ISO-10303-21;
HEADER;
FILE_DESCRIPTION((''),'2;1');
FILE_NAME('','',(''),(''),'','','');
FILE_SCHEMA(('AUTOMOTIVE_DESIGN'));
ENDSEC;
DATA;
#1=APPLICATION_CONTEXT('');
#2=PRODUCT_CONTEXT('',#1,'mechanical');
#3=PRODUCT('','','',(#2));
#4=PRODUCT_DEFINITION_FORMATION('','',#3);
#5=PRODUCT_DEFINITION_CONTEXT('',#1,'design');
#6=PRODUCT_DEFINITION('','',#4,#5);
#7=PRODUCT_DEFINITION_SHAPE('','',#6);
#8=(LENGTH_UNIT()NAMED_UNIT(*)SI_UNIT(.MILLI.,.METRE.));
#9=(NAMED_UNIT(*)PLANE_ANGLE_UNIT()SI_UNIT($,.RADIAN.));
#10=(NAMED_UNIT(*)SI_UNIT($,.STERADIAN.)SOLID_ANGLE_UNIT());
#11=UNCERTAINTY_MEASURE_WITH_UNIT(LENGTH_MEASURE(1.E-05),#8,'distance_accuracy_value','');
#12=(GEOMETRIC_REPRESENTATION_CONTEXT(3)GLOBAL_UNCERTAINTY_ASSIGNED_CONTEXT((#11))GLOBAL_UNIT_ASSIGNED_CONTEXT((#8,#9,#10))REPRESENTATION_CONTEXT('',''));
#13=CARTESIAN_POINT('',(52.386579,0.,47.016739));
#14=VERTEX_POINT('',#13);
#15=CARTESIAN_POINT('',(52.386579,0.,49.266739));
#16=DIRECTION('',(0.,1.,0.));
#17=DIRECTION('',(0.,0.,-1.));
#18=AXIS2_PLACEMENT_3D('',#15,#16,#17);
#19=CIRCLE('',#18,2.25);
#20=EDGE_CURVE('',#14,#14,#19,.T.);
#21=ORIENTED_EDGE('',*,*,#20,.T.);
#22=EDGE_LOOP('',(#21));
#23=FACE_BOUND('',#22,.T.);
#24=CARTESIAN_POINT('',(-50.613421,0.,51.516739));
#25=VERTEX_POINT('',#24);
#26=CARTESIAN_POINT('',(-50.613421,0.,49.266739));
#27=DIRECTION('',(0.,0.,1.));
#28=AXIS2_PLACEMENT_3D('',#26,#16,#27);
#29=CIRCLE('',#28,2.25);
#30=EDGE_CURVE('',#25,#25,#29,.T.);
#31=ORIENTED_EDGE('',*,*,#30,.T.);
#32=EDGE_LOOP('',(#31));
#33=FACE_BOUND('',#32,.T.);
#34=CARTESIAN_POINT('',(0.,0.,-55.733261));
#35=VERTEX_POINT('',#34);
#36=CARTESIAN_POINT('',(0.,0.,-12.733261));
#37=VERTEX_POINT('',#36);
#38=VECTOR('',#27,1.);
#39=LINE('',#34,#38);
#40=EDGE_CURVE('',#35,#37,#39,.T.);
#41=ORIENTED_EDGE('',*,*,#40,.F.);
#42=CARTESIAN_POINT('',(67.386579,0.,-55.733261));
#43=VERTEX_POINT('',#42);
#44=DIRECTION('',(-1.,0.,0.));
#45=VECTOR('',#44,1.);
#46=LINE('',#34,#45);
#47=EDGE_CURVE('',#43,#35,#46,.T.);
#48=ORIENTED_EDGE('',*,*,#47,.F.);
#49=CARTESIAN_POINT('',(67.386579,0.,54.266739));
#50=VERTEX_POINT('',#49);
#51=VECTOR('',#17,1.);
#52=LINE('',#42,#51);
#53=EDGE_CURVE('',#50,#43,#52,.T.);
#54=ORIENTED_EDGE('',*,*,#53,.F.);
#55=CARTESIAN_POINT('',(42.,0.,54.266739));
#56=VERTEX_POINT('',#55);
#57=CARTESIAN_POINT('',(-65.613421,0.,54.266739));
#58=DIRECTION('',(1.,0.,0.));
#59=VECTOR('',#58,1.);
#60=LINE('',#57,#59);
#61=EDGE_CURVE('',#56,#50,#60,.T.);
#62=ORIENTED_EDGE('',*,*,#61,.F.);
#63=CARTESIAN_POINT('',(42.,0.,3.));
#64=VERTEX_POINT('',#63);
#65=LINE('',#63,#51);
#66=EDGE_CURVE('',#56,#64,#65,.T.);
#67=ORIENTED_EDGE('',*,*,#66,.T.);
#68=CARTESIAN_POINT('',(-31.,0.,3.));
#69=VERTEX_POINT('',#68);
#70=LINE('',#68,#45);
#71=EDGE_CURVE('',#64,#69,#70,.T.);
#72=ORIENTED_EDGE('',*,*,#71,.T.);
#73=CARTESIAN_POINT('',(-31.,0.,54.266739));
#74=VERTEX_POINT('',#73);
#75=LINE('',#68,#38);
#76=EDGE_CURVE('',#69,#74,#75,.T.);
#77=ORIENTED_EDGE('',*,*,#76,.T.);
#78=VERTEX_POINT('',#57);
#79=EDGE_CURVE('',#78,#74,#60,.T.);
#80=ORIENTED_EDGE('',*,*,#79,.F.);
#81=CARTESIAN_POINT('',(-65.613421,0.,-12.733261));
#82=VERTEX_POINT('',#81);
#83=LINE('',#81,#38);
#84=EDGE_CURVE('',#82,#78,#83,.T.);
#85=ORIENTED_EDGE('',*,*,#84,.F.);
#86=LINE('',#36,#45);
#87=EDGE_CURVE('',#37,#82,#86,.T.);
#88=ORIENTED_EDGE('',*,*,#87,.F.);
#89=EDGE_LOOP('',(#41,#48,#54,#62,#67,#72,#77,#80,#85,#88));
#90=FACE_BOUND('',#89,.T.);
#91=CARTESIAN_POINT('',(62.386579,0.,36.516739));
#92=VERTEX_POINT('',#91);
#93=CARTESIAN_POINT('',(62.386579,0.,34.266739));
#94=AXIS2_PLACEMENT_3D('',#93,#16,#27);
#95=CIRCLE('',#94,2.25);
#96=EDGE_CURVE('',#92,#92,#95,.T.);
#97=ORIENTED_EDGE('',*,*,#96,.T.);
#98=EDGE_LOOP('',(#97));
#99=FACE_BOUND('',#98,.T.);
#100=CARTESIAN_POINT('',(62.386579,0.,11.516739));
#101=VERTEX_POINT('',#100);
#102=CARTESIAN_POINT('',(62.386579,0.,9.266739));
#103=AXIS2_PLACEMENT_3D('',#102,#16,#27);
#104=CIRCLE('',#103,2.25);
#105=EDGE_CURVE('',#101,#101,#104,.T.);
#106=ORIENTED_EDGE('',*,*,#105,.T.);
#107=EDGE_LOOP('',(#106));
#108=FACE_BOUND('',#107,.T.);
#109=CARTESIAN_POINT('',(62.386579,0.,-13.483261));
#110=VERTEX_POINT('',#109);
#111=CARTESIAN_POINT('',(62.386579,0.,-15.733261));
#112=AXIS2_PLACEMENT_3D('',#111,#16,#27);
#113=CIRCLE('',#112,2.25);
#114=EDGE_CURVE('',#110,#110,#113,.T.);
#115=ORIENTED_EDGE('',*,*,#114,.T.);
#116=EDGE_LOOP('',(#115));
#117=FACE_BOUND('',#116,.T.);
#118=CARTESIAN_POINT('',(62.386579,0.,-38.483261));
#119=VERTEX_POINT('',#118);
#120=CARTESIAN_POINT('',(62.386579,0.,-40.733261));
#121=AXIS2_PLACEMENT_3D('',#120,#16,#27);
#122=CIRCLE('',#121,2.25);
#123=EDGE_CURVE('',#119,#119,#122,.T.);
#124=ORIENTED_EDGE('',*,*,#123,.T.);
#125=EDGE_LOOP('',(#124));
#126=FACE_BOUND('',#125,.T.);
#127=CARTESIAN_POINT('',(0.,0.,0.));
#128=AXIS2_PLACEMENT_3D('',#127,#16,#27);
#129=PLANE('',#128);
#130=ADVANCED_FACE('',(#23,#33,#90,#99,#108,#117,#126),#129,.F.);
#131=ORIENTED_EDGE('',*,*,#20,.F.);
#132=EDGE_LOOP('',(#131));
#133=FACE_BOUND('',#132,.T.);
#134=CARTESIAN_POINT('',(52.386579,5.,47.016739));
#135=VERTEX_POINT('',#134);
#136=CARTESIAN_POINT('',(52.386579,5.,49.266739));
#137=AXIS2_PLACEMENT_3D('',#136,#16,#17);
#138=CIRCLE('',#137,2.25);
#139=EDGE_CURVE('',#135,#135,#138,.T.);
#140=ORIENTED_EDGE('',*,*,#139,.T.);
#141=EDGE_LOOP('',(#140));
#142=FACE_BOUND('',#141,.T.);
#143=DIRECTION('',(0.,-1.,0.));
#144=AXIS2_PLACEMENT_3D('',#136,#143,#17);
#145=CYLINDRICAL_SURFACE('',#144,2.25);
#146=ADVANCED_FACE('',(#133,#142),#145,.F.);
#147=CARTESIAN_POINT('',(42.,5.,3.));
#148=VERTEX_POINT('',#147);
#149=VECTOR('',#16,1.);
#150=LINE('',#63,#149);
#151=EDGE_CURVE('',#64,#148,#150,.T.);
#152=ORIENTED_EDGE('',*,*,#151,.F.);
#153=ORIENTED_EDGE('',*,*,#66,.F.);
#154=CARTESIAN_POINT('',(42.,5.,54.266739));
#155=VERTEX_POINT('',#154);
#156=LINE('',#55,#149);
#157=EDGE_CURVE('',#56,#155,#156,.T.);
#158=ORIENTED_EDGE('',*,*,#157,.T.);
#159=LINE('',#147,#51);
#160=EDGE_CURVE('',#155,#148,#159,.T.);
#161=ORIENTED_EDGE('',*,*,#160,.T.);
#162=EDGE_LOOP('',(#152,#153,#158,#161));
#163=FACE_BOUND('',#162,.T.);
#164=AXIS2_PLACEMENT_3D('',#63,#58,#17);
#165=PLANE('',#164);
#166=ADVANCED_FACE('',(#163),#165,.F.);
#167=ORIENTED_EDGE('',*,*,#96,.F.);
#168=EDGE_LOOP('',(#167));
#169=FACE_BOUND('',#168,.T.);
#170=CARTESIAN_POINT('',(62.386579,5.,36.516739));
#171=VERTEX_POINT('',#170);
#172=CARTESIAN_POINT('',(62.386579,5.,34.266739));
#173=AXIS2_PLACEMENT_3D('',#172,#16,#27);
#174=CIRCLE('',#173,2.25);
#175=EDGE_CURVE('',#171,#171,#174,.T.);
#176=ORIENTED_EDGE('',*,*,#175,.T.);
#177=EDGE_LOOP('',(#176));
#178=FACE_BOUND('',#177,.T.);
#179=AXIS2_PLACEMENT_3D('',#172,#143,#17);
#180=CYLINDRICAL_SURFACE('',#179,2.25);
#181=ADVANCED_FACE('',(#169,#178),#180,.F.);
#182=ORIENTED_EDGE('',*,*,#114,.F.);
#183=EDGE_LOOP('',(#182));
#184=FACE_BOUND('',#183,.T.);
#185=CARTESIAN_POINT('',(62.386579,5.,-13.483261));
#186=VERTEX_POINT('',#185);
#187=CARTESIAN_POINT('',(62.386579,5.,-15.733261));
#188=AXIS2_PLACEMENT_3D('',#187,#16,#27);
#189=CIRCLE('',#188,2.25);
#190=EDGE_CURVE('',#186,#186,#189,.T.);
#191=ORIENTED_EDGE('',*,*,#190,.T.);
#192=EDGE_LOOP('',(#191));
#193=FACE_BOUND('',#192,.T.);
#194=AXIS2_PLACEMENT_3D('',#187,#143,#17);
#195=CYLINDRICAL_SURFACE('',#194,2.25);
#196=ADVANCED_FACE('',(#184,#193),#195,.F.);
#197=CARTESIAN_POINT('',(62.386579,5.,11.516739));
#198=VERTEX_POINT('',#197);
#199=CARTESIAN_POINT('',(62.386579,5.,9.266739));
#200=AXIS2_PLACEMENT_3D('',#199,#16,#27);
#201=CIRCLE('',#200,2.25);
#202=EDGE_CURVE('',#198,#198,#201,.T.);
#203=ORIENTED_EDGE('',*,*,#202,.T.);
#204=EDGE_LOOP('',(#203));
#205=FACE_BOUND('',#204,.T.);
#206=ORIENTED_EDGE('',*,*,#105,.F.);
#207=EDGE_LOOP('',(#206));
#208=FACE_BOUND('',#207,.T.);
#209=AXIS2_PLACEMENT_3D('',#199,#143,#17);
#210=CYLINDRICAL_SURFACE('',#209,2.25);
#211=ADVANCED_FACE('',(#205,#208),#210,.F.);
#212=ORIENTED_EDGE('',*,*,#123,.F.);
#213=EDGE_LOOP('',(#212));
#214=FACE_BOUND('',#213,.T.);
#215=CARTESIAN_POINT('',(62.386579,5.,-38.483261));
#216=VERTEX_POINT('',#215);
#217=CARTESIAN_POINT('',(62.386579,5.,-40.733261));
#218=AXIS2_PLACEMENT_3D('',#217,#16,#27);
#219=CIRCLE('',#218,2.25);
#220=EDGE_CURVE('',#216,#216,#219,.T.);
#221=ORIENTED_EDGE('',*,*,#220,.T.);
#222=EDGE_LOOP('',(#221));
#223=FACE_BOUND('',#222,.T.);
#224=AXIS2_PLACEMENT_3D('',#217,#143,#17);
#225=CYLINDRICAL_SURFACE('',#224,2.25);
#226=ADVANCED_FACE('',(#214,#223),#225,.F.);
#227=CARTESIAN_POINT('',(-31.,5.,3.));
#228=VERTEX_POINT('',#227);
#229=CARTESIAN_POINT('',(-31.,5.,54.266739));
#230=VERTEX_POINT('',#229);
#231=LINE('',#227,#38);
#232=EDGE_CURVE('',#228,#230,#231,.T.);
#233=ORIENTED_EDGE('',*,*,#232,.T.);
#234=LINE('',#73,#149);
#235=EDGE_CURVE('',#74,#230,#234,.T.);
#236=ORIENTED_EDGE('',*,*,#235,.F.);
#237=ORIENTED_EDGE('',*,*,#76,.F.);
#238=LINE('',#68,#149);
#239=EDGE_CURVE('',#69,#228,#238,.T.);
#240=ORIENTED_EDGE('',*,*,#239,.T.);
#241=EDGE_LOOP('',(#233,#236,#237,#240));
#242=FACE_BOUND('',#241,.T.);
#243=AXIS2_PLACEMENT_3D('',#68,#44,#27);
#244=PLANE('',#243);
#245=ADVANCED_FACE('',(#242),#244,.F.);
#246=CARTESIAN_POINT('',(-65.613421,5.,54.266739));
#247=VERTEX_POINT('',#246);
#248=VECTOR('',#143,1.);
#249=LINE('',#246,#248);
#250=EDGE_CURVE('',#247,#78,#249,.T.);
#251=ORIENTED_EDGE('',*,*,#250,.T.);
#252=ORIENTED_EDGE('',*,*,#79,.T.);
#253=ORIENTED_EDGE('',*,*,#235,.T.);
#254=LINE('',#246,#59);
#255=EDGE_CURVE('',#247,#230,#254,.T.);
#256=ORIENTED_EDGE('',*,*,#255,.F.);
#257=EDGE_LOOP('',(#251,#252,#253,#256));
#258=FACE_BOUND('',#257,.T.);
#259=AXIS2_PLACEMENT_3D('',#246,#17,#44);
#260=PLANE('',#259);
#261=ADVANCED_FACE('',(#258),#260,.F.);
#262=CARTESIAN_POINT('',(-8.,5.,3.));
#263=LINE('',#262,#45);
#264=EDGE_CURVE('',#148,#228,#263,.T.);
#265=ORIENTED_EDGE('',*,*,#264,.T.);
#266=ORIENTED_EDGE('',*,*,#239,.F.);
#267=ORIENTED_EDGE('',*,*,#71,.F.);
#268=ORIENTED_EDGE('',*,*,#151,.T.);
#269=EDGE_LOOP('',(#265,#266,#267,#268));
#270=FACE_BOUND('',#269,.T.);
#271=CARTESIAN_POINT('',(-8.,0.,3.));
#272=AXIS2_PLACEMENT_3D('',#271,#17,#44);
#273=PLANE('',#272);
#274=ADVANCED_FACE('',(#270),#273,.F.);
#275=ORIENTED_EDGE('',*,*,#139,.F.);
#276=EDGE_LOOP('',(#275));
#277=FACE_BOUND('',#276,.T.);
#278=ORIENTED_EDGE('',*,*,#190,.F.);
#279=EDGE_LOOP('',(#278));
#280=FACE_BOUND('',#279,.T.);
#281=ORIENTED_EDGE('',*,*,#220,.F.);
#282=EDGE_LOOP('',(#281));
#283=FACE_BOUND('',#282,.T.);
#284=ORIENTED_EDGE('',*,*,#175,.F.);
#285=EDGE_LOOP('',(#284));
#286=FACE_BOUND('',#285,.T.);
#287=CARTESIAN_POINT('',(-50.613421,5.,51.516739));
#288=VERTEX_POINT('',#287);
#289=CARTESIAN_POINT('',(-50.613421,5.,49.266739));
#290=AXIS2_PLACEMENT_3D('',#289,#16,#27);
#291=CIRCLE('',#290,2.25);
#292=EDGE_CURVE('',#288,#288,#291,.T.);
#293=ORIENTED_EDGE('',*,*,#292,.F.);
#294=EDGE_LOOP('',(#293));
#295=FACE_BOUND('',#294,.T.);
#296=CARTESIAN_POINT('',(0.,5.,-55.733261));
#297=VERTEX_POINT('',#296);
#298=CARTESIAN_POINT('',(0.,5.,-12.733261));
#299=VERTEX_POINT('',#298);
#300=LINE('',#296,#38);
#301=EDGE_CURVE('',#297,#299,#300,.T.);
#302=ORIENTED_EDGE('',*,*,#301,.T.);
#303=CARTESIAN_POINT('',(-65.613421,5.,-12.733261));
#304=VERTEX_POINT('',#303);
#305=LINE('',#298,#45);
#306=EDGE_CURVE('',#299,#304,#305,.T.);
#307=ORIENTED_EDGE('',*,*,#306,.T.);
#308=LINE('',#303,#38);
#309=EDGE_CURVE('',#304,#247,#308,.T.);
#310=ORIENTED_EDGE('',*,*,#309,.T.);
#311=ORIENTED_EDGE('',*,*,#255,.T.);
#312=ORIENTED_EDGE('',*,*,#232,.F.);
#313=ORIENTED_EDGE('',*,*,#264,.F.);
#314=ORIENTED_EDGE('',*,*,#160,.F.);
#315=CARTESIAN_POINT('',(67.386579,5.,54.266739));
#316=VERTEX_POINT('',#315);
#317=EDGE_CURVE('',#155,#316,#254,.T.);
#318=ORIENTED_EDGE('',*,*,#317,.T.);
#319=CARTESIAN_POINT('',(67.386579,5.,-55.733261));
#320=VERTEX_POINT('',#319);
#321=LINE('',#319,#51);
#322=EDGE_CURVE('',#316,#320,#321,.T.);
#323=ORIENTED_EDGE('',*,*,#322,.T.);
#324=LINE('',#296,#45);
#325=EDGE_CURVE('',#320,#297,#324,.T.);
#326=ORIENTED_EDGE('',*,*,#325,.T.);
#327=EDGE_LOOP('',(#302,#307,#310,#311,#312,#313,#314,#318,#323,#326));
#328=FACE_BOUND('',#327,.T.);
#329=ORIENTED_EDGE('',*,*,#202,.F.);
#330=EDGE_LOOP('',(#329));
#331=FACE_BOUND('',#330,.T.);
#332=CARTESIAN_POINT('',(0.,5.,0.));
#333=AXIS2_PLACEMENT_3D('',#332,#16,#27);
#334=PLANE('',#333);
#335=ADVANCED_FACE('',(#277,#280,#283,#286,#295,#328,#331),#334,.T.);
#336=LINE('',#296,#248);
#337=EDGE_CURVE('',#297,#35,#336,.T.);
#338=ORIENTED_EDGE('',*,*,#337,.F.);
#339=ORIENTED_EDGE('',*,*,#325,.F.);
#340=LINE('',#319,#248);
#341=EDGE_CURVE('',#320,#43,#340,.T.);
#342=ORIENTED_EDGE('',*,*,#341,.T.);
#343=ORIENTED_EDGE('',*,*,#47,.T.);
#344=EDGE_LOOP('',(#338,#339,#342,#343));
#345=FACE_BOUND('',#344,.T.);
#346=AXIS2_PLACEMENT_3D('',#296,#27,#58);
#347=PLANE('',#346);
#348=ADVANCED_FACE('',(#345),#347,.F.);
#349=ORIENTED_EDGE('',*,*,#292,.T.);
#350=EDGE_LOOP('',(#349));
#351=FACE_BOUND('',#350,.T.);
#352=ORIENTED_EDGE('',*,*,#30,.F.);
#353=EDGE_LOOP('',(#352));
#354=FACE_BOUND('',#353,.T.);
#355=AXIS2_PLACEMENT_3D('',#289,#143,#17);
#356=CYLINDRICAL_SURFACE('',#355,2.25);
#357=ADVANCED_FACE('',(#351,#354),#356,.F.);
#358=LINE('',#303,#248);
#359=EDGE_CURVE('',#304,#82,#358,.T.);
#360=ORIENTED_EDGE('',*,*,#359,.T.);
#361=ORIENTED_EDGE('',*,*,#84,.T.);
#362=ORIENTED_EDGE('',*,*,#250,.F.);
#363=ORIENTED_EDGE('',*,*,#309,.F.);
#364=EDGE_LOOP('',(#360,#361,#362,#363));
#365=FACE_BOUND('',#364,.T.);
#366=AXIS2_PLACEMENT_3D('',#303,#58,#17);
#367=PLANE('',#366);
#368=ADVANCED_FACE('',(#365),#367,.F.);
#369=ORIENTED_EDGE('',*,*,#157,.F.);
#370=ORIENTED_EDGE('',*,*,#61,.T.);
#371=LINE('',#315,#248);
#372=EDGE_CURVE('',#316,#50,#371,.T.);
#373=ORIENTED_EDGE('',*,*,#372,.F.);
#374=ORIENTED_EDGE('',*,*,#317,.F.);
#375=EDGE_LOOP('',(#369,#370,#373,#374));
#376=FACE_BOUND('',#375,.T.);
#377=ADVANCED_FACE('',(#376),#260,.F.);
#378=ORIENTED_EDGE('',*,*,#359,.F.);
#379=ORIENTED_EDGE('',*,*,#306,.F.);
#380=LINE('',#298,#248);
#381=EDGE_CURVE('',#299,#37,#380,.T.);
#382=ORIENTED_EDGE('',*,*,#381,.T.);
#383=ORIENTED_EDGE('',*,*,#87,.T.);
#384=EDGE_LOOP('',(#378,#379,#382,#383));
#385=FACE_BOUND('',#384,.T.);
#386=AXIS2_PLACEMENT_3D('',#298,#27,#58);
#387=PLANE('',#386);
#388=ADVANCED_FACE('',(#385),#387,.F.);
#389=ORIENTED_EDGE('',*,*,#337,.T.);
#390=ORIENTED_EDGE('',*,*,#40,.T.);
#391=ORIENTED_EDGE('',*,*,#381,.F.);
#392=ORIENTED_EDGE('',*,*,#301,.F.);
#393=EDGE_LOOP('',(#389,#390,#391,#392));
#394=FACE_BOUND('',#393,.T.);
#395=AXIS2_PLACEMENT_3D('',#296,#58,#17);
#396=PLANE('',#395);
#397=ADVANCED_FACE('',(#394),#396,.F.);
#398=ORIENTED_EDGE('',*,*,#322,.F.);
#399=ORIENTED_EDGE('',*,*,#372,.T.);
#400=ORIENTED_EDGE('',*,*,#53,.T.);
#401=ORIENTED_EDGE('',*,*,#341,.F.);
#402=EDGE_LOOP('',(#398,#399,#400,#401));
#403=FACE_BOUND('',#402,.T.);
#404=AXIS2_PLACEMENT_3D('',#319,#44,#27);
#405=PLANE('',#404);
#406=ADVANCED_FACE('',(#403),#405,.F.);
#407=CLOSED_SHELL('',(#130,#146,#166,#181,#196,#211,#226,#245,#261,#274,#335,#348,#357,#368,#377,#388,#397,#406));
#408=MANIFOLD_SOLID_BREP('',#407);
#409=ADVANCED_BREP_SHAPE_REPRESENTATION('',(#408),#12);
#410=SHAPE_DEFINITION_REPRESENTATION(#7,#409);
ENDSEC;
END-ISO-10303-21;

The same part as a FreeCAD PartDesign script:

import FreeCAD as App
import Part
import Sketcher

V = App.Vector

doc = App.newDocument("Part")
body = doc.addObject("PartDesign::Body", "Body")

sketch1 = body.newObject("Sketcher::SketchObject", "Sketch")
sketch1.AttachmentSupport = (doc.getObject("XZ_Plane"), [""])
sketch1.MapMode = "FlatFace"
sketch1.addGeometry(Part.LineSegment(V(0, -55.7, 0), V(0, -12.7, 0)), False)
sketch1.addGeometry(Part.LineSegment(V(0, -12.7, 0), V(-65.6, -12.7, 0)), False)
sketch1.addGeometry(Part.LineSegment(V(-65.6, -12.7, 0), V(-65.6, 54.3, 0)), False)
sketch1.addGeometry(Part.LineSegment(V(-65.6, 54.3, 0), V(67.4, 54.3, 0)), False)
sketch1.addGeometry(Part.LineSegment(V(67.4, 54.3, 0), V(67.4, -55.7, 0)), False)
sketch1.addGeometry(Part.LineSegment(V(67.4, -55.7, 0), V(0, -55.7, 0)), False)
sketch1.addGeometry(Part.Circle(V(-50.6, 49.3, 0), V(0, 0, 1), 2.2), False)
sketch1.addGeometry(Part.Circle(V(0.9, 49.3, 0), V(0, 0, 1), 2.2), False)
sketch1.addGeometry(Part.Circle(V(52.4, 49.3, 0), V(0, 0, 1), 2.2), False)
sketch1.addGeometry(Part.Circle(V(62.4, 34.3, 0), V(0, 0, 1), 2.2), False)
sketch1.addGeometry(Part.Circle(V(62.4, 9.3, 0), V(0, 0, 1), 2.2), False)
sketch1.addGeometry(Part.Circle(V(62.4, -15.7, 0), V(0, 0, 1), 2.2), False)
sketch1.addGeometry(Part.Circle(V(62.4, -40.7, 0), V(0, 0, 1), 2.2), False)
sketch1.addConstraint(Sketcher.Constraint("Coincident", 0, 2, 1, 1))
sketch1.addConstraint(Sketcher.Constraint("Coincident", 1, 2, 2, 1))
sketch1.addConstraint(Sketcher.Constraint("Coincident", 2, 2, 3, 1))
sketch1.addConstraint(Sketcher.Constraint("Coincident", 3, 2, 4, 1))
sketch1.addConstraint(Sketcher.Constraint("Coincident", 4, 2, 5, 1))
sketch1.addConstraint(Sketcher.Constraint("Coincident", 5, 2, 0, 1))
sketch1.addConstraint(Sketcher.Constraint("Vertical", 0))
sketch1.addConstraint(Sketcher.Constraint("Horizontal", 1))
sketch1.addConstraint(Sketcher.Constraint("Vertical", 2))
sketch1.addConstraint(Sketcher.Constraint("Horizontal", 3))
sketch1.addConstraint(Sketcher.Constraint("Vertical", 4))
sketch1.addConstraint(Sketcher.Constraint("Horizontal", 5))
sketch1.addConstraint(Sketcher.Constraint("Equal", 6, 7))
sketch1.addConstraint(Sketcher.Constraint("Equal", 7, 8))
sketch1.addConstraint(Sketcher.Constraint("Equal", 8, 9))
sketch1.addConstraint(Sketcher.Constraint("Equal", 9, 10))
sketch1.addConstraint(Sketcher.Constraint("Equal", 10, 11))
sketch1.addConstraint(Sketcher.Constraint("Equal", 11, 12))
sketch1.addConstraint(Sketcher.Constraint("PointOnObject", 0, 2, -2))
sketch1.addConstraint(Sketcher.Constraint("Horizontal", 6, 3, 7, 3))
sketch1.addConstraint(Sketcher.Constraint("Horizontal", 7, 3, 8, 3))
sketch1.addConstraint(Sketcher.Constraint("Vertical", 9, 3, 10, 3))
sketch1.addConstraint(Sketcher.Constraint("Vertical", 10, 3, 11, 3))
sketch1.addConstraint(Sketcher.Constraint("Vertical", 11, 3, 12, 3))
sketch1.addConstraint(Sketcher.Constraint("Diameter", 6, 4.5))
sketch1.addConstraint(Sketcher.Constraint("DistanceX", 3, 1, 3, 2, 133.0))
sketch1.addConstraint(Sketcher.Constraint("DistanceY", 0, 1, 0, 2, 43.0))
sketch1.addConstraint(Sketcher.Constraint("DistanceY", 2, 1, 2, 2, 67.0))
sketch1.addConstraint(Sketcher.Constraint("DistanceX", 6, 3, 8, 3, 103.0))
sketch1.addConstraint(Sketcher.Constraint("DistanceX", 8, 3, 9, 3, 10.0))
sketch1.addConstraint(Sketcher.Constraint("DistanceY", 9, 3, 8, 3, 15.0))
sketch1.addConstraint(Sketcher.Constraint("DistanceY", 10, 3, 9, 3, 25.0))
sketch1.addConstraint(Sketcher.Constraint("DistanceY", 11, 3, 10, 3, 25.0))
sketch1.addConstraint(Sketcher.Constraint("DistanceY", 12, 3, 11, 3, 25.0))
sketch1.addConstraint(Sketcher.Constraint("DistanceY", 0, 2, 7, 3, 62.0))
sketch1.addConstraint(Sketcher.Constraint("DistanceX", 1, 2, 6, 3, 15.0))
sketch1.addConstraint(Sketcher.Constraint("DistanceX", 6, 3, 7, 3, 51.5))
sketch1.addConstraint(Sketcher.Constraint("DistanceX", 1, 2, 1, 1, 65.613421))
sketch1.addConstraint(Sketcher.Constraint("DistanceY", -1, 1, 6, 3, 49.266739))
pad1 = body.newObject("PartDesign::Pad", "Pad")
pad1.Profile = sketch1
pad1.Length = 5
pad1.Reversed = True

sketch2 = body.newObject("Sketcher::SketchObject", "Sketch001")
sketch2.AttachmentSupport = (doc.getObject("XZ_Plane"), [""])
sketch2.MapMode = "FlatFace"
sketch2.AttachmentOffset = App.Placement(V(0, 0, -5), App.Rotation())
sketch2.addGeometry(Part.LineSegment(V(42, 3, 0), V(-31, 3, 0)), False)
sketch2.addGeometry(Part.LineSegment(V(-31, 3, 0), V(-31, 54, 0)), False)
sketch2.addGeometry(Part.LineSegment(V(-31, 54, 0), V(42, 54, 0)), False)
sketch2.addGeometry(Part.LineSegment(V(42, 54, 0), V(42, 3, 0)), False)
sketch2.addConstraint(Sketcher.Constraint("Coincident", 0, 2, 1, 1))
sketch2.addConstraint(Sketcher.Constraint("Coincident", 1, 2, 2, 1))
sketch2.addConstraint(Sketcher.Constraint("Coincident", 2, 2, 3, 1))
sketch2.addConstraint(Sketcher.Constraint("Coincident", 3, 2, 0, 1))
sketch2.addConstraint(Sketcher.Constraint("Horizontal", 0))
sketch2.addConstraint(Sketcher.Constraint("Vertical", 1))
sketch2.addConstraint(Sketcher.Constraint("Horizontal", 2))
sketch2.addConstraint(Sketcher.Constraint("Vertical", 3))
sketch2.addConstraint(Sketcher.Constraint("DistanceX", 0, 2, 0, 1, 73.0))
sketch2.addConstraint(Sketcher.Constraint("DistanceX", 0, 2, -1, 1, 31.0))
sketch2.addConstraint(Sketcher.Constraint("DistanceY", -1, 1, 0, 2, 3.0))
sketch2.addConstraint(Sketcher.Constraint("DistanceY", 1, 1, 1, 2, 51.266739))
pocket1 = body.newObject("PartDesign::Pocket", "Pocket")
pocket1.Profile = sketch2
pocket1.Length = 5
pocket1.Reversed = True

doc.recompute()
